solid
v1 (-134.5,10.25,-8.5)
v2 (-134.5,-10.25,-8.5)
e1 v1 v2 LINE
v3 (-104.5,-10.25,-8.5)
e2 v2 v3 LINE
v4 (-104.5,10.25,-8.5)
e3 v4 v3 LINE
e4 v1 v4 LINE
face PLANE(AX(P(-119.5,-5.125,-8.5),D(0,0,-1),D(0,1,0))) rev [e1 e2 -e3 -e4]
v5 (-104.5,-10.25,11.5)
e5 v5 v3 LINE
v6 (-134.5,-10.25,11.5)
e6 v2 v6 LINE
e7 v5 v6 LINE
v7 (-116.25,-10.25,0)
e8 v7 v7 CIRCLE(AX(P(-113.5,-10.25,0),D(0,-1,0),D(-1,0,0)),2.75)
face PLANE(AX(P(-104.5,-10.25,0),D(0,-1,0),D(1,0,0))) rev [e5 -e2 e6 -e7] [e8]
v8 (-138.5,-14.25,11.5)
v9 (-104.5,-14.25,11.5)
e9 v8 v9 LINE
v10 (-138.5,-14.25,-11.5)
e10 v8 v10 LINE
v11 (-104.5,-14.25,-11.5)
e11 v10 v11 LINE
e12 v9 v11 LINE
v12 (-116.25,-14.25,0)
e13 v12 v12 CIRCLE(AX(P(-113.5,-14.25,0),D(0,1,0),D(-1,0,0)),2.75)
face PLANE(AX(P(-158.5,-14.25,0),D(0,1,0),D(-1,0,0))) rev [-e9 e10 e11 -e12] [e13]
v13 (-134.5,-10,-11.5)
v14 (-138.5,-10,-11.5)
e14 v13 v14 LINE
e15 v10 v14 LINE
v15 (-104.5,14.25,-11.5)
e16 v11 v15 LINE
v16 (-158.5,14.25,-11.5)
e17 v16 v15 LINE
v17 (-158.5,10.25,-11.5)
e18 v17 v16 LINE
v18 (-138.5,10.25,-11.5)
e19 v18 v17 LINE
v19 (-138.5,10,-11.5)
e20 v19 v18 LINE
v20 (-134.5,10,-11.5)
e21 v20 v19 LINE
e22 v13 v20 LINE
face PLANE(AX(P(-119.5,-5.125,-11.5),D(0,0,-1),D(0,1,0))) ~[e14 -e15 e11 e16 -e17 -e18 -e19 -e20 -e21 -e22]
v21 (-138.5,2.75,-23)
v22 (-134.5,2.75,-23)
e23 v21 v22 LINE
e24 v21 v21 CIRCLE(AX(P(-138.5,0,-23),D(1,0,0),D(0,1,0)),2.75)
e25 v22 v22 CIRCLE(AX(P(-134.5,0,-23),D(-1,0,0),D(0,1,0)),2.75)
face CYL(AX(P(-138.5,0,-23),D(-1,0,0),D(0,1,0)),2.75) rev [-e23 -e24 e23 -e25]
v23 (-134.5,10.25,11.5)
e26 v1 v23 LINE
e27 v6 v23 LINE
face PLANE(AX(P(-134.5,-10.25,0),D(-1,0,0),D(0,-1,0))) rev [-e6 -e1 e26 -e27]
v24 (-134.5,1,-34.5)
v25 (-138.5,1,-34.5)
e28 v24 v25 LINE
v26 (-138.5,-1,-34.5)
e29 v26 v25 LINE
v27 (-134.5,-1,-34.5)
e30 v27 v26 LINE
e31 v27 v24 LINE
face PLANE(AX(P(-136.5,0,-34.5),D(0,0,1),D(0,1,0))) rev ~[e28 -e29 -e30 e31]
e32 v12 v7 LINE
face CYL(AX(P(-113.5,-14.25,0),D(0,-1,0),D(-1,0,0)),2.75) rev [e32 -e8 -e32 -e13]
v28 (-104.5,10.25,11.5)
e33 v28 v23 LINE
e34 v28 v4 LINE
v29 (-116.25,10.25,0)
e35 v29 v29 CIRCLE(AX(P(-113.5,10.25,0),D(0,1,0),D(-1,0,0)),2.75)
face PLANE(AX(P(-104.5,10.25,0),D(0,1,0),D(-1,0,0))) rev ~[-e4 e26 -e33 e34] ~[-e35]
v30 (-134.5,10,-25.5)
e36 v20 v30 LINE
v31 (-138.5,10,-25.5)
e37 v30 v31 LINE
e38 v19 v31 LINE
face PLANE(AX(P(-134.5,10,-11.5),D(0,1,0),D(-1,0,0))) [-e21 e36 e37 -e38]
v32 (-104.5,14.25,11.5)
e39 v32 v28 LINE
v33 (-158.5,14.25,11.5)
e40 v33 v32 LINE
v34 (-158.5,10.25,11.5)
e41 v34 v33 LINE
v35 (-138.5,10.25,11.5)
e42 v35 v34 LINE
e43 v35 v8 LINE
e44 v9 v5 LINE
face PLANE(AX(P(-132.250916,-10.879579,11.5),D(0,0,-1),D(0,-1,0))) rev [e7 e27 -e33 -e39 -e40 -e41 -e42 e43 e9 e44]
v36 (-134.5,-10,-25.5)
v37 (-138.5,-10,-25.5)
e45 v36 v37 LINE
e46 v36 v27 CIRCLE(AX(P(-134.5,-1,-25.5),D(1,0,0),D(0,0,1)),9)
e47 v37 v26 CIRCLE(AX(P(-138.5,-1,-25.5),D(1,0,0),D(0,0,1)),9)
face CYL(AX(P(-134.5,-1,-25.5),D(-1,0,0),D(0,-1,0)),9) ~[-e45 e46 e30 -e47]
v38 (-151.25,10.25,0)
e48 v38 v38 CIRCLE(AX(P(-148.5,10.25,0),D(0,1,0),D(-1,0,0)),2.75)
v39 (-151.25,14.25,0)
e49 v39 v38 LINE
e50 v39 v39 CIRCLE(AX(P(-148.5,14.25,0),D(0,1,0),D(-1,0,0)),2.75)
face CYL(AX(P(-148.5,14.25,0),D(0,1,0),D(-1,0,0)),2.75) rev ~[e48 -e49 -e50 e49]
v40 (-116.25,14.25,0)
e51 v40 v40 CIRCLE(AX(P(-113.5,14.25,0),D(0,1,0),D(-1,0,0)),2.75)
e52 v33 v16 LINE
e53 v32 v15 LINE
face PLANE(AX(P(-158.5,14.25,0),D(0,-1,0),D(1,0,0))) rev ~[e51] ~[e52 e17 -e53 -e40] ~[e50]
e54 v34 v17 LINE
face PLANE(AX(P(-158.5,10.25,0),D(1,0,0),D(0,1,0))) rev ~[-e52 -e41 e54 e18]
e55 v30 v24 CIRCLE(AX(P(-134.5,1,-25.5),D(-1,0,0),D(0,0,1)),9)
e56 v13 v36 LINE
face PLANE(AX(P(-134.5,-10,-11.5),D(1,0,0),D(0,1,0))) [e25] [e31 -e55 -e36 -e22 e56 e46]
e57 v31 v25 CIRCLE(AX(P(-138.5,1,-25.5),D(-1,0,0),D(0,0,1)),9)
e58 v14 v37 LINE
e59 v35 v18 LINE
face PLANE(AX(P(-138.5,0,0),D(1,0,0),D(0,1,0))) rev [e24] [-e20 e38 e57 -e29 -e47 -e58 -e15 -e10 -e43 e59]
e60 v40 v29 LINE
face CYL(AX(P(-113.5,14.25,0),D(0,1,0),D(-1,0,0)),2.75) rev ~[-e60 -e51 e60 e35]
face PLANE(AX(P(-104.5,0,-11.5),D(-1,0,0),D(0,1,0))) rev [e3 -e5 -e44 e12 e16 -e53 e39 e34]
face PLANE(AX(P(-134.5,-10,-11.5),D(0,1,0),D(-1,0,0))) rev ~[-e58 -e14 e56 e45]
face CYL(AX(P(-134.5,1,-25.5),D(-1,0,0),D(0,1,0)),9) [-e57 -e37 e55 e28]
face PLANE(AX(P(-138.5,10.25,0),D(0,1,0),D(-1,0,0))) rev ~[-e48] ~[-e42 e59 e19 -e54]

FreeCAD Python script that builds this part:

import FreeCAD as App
import Part
import Sketcher


def edges_at(feature, points):
    """Names of the edges that pass closest to the given points."""
    edges = feature.Shape.Edges
    near = lambda p: min(range(len(edges)), key=lambda i: edges[i].distToShape(Part.Vertex(*p))[0])
    return sorted({f"Edge{near(p) + 1}" for p in points})


def add_polygon(sketch, points):
    """Adds a closed chain of lines whose ends are joined by coincident constraints."""
    first, n = sketch.GeometryCount, len(points)
    for a, b in zip(points, points[1:] + points[:1]):
        sketch.addGeometry(Part.LineSegment(App.Vector(*a, 0), App.Vector(*b, 0)), False)
    for i in range(n):
        sketch.addConstraint(Sketcher.Constraint("Coincident", first + i, 2, first + (i + 1) % n, 1))

doc = App.newDocument("Part")
body = doc.addObject("PartDesign::Body", "Body")

# Sketch on XY plane
sketch1 = body.newObject("Sketcher::SketchObject", "Sketch")
sketch1.AttachmentSupport = (doc.getObject("XY_Plane"), [""])
sketch1.MapMode = "FlatFace"
add_polygon(sketch1, [(10.25, 0), (0, 0), (0, -4), (10.25, -4), (10.25, -34), (14.25, -34), (14.25, 20), (10.25, 20)])  # lines 0-7
sketch1.addConstraint(Sketcher.Constraint("Horizontal", 0))
sketch1.addConstraint(Sketcher.Constraint("Vertical", 1))
sketch1.addConstraint(Sketcher.Constraint("Horizontal", 2))
sketch1.addConstraint(Sketcher.Constraint("Vertical", 3))
sketch1.addConstraint(Sketcher.Constraint("Horizontal", 4))
sketch1.addConstraint(Sketcher.Constraint("Vertical", 5))
sketch1.addConstraint(Sketcher.Constraint("Horizontal", 6))
sketch1.addConstraint(Sketcher.Constraint("Vertical", 7))
sketch1.addConstraint(Sketcher.Constraint("Coincident", 0, 2, -1, 1))
sketch1.addConstraint(Sketcher.Constraint("Vertical", 3, 2, 6, 2))
sketch1.addConstraint(Sketcher.Constraint("Equal", 6, 1))
sketch1.addConstraint(Sketcher.Constraint("DistanceX", 4, 1, 4, 2, 4.0))
sketch1.addConstraint(Sketcher.Constraint("DistanceY", 3, 2, 3, 1, 30.0))
sketch1.addConstraint(Sketcher.Constraint("DistanceY", 5, 1, 5, 2, 54.0))
sketch1.addConstraint(Sketcher.Constraint("DistanceX", 0, 2, 0, 1, 10.25))
pad1 = body.newObject("PartDesign::Pad", "Pad")
pad1.Profile = sketch1
pad1.Length = 23
pad1.Midplane = True

# Sketch on XY plane
sketch2 = body.newObject("Sketcher::SketchObject", "Sketch001")
sketch2.AttachmentSupport = (doc.getObject("XY_Plane"), [""])
sketch2.MapMode = "FlatFace"
sketch2.AttachmentOffset = App.Placement(App.Vector(0, 0, -11.5), App.Rotation())
add_polygon(sketch2, [(0, -34), (0, -4), (10.25, -4), (10.25, -34)])  # lines 0-3
sketch2.addConstraint(Sketcher.Constraint("Vertical", 0))
sketch2.addConstraint(Sketcher.Constraint("Horizontal", 1))
sketch2.addConstraint(Sketcher.Constraint("Vertical", 2))
sketch2.addConstraint(Sketcher.Constraint("Horizontal", 3))
sketch2.addConstraint(Sketcher.Constraint("PointOnObject", 0, 2, -2))
sketch2.addConstraint(Sketcher.Constraint("DistanceY", 0, 1, 0, 2, 30.0))
sketch2.addConstraint(Sketcher.Constraint("DistanceY", 0, 2, -1, 1, 4.0))
sketch2.addConstraint(Sketcher.Constraint("DistanceX", 1, 1, 1, 2, 10.25))
pad2 = body.newObject("PartDesign::Pad", "Pad001")
pad2.Profile = sketch2
pad2.Length = 3

# Sketch on YZ plane
sketch3 = body.newObject("Sketcher::SketchObject", "Sketch002")
sketch3.AttachmentSupport = (doc.getObject("YZ_Plane"), [""])
sketch3.MapMode = "FlatFace"
sketch3.AttachmentOffset = App.Placement(App.Vector(0, 0, 14.25), App.Rotation())
sketch3.addGeometry(Part.Circle(App.Vector(-25, 0, 0), App.Vector(0, 0, 1), 2.75), False)
sketch3.addGeometry(Part.Circle(App.Vector(10, 0, 0), App.Vector(0, 0, 1), 2.75), False)
sketch3.addConstraint(Sketcher.Constraint("Equal", 0, 1))
sketch3.addConstraint(Sketcher.Constraint("PointOnObject", 0, 3, -1))
sketch3.addConstraint(Sketcher.Constraint("PointOnObject", 1, 3, -1))
sketch3.addConstraint(Sketcher.Constraint("Diameter", 0, 5.5))
sketch3.addConstraint(Sketcher.Constraint("DistanceX", 0, 3, -1, 1, 25.0))
sketch3.addConstraint(Sketcher.Constraint("DistanceX", -1, 1, 1, 3, 10.0))
pocket1 = body.newObject("PartDesign::Pocket", "Pocket")
pocket1.Profile = sketch3
pocket1.Length = 5
doc.recompute()

mirrored = body.newObject("PartDesign::Mirrored", "Mirrored")
mirrored.Originals = [pad1, pad2, pocket1]
mirrored.MirrorPlane = (doc.getObject("YZ_Plane"), [""])
body.Tip = mirrored

# Sketch on XY plane
sketch4 = body.newObject("Sketcher::SketchObject", "Sketch003")
sketch4.AttachmentSupport = (doc.getObject("XY_Plane"), [""])
sketch4.MapMode = "FlatFace"
add_polygon(sketch4, [(-14.25, 20), (-14.25, 0), (-10.25, 0), (-10.25, 20)])  # lines 0-3
sketch4.addConstraint(Sketcher.Constraint("Vertical", 0))
sketch4.addConstraint(Sketcher.Constraint("Horizontal", 1))
sketch4.addConstraint(Sketcher.Constraint("Vertical", 2))
sketch4.addConstraint(Sketcher.Constraint("Horizontal", 3))
sketch4.addConstraint(Sketcher.Constraint("PointOnObject", 0, 2, -1))
sketch4.addConstraint(Sketcher.Constraint("DistanceX", 1, 1, 1, 2, 4.0))
sketch4.addConstraint(Sketcher.Constraint("DistanceY", 0, 2, 0, 1, 20.0))
sketch4.addConstraint(Sketcher.Constraint("DistanceX", 0, 2, -1, 1, 14.25))
pocket2 = body.newObject("PartDesign::Pocket", "Pocket001")
pocket2.Profile = sketch4
pocket2.Type = "ThroughAll"
pocket2.Midplane = True

# Sketch on XY plane
sketch5 = body.newObject("Sketcher::SketchObject", "Sketch004")
sketch5.AttachmentSupport = (doc.getObject("XY_Plane"), [""])
sketch5.MapMode = "FlatFace"
sketch5.AttachmentOffset = App.Placement(App.Vector(0, 0, -11.5), App.Rotation())
add_polygon(sketch5, [(-10, 0), (-10, -4), (10, -4), (10, 0)])  # lines 0-3
sketch5.addConstraint(Sketcher.Constraint("Vertical", 0))
sketch5.addConstraint(Sketcher.Constraint("Horizontal", 1))
sketch5.addConstraint(Sketcher.Constraint("Vertical", 2))
sketch5.addConstraint(Sketcher.Constraint("Horizontal", 3))
sketch5.addConstraint(Sketcher.Constraint("Symmetric", 2, 2, 3, 2, -1, 1))
sketch5.addConstraint(Sketcher.Constraint("DistanceX", 1, 1, 1, 2, 20.0))
sketch5.addConstraint(Sketcher.Constraint("DistanceY", 0, 2, 0, 1, 4.0))
pad3 = body.newObject("PartDesign::Pad", "Pad002")
pad3.Profile = sketch5
pad3.Length = 23
pad3.Reversed = True

# Sketch on XZ plane
sketch6 = body.newObject("Sketcher::SketchObject", "Sketch005")
sketch6.AttachmentSupport = (doc.getObject("XZ_Plane"), [""])
sketch6.MapMode = "FlatFace"
sketch6.addGeometry(Part.Circle(App.Vector(0, -23, 0), App.Vector(0, 0, 1), 2.75), False)
sketch6.addConstraint(Sketcher.Constraint("PointOnObject", 0, 3, -2))
sketch6.addConstraint(Sketcher.Constraint("Diameter", 0, 5.5))
sketch6.addConstraint(Sketcher.Constraint("DistanceY", 0, 3, -1, 1, 23.0))
pocket3 = body.newObject("PartDesign::Pocket", "Pocket002")
pocket3.Profile = sketch6
pocket3.Type = "ThroughAll"
pocket3.Reversed = True
doc.recompute()

fillet = body.newObject("PartDesign::Fillet", "Fillet")
fillet.Base = (pocket3, edges_at(pocket3, [(10, -2, -34.5), (-10, -2, -34.5)]))
fillet.Radius = 9
body2 = doc.addObject("PartDesign::Body", "Body001")
doc.recompute()

body.Placement = App.Placement(App.Vector(-138.5, 0, 0), App.Rotation(App.Vector(0, 0, 1), 90))
boolean = body2.newObject("PartDesign::Boolean", "Boolean")
boolean.Type = "Fuse"
boolean.addObjects([body])

doc.recompute()
